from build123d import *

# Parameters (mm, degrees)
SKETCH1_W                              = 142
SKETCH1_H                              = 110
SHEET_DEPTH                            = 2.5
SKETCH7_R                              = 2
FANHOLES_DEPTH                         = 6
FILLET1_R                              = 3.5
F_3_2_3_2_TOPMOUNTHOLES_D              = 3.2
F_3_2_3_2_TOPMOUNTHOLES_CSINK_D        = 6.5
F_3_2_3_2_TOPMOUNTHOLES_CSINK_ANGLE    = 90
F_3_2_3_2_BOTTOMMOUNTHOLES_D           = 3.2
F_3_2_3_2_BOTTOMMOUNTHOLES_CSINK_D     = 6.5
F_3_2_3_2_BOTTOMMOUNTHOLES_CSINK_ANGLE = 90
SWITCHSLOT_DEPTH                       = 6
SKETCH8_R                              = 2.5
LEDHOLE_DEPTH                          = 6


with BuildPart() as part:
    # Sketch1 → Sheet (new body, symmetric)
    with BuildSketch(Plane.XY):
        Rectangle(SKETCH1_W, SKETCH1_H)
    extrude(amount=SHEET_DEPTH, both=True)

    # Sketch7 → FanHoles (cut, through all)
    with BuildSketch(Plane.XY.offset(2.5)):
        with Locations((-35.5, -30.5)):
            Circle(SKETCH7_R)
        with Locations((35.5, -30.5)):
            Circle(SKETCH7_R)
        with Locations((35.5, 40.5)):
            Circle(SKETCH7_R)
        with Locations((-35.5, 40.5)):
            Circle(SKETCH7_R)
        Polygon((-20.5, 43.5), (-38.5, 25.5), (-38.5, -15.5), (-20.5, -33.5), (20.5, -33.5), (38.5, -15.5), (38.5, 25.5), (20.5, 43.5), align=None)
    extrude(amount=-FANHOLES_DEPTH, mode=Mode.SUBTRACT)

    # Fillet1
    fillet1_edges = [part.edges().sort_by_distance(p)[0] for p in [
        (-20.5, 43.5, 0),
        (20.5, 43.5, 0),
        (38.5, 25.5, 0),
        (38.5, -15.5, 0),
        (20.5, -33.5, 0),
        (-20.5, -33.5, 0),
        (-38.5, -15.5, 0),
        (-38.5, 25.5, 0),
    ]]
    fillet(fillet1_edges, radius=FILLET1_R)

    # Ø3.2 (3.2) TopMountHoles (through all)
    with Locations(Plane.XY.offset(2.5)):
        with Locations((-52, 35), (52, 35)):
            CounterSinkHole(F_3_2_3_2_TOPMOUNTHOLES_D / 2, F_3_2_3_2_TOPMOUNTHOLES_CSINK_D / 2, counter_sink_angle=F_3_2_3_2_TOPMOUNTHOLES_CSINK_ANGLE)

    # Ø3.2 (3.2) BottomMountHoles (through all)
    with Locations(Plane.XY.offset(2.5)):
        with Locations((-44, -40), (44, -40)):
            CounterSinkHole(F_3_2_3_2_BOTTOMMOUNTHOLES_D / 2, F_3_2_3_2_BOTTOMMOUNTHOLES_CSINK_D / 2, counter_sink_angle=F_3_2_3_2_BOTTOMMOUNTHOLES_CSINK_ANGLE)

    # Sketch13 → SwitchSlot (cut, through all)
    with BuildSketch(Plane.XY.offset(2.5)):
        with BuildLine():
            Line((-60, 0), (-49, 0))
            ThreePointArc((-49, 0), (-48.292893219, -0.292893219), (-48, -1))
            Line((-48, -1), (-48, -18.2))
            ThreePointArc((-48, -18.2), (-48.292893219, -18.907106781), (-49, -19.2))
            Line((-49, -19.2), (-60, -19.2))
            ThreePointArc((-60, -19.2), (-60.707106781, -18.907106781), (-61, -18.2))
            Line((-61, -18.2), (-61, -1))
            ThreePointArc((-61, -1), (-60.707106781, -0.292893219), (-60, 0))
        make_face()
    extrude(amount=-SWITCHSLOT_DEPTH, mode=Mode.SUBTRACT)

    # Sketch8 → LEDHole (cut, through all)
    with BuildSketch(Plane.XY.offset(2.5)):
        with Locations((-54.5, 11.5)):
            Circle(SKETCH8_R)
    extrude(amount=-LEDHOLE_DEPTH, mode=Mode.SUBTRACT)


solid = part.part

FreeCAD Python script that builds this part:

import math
import FreeCAD as App
import Part
import Sketcher

V = App.Vector
Q = App.Units.Quantity


def edges_at(feature, points):
    """Names of the edges that pass closest to the given points."""
    edges = feature.Shape.Edges
    near = lambda p: min(range(len(edges)), key=lambda i: edges[i].distToShape(Part.Vertex(*p))[0])
    return sorted({f"Edge{near(p) + 1}" for p in points})


def add_polygon(sketch, points):
    """Adds a closed chain of lines whose ends are joined by coincident constraints."""
    first, n = sketch.GeometryCount, len(points)
    for a, b in zip(points, points[1:] + points[:1]):
        sketch.addGeometry(Part.LineSegment(App.Vector(*a, 0), App.Vector(*b, 0)), False)
    for i in range(n):
        sketch.addConstraint(Sketcher.Constraint("Coincident", first + i, 2, first + (i + 1) % n, 1))

doc = App.newDocument("Part")
body = doc.addObject("PartDesign::Body", "Body")

sketch1 = body.newObject("Sketcher::SketchObject", "Sketch")
sketch1.AttachmentSupport = (doc.getObject("XY_Plane"), [""])
sketch1.MapMode = "FlatFace"
add_polygon(sketch1, [(-71, 55), (-71, -55), (71, -55), (71, 55)])
sketch1.addConstraint([
    Sketcher.Constraint("Vertical", 0),
    Sketcher.Constraint("Horizontal", 1),
    Sketcher.Constraint("Vertical", 2),
    Sketcher.Constraint("Horizontal", 3),
    Sketcher.Constraint("Symmetric", 0, 2, 2, 2, -1, 1),
    Sketcher.Constraint("DistanceX", 1, 1, 1, 2, Q("142 mm")),
    Sketcher.Constraint("DistanceY", 0, 2, 0, 1, Q("110 mm")),
])
pad1 = body.newObject("PartDesign::Pad", "Pad")
pad1.Profile = sketch1
pad1.Length = 5
pad1.Midplane = True

sketch2 = body.newObject("Sketcher::SketchObject", "Sketch001")
sketch2.AttachmentSupport = (doc.getObject("XY_Plane"), [""])
sketch2.MapMode = "FlatFace"
sketch2.AttachmentOffset = App.Placement(V(0, 0, 2.5), App.Rotation())
sketch2.addGeometry(Part.Circle(V(-35.5, -30.5, 0), V(0, 0, 1), 2), False)
sketch2.addGeometry(Part.Circle(V(35.5, -30.5, 0), V(0, 0, 1), 2), False)
sketch2.addGeometry(Part.Circle(V(35.5, 40.5, 0), V(0, 0, 1), 2), False)
sketch2.addGeometry(Part.Circle(V(-35.5, 40.5, 0), V(0, 0, 1), 2), False)
add_polygon(sketch2, [(-20.5, 43.5), (-38.5, 25.5), (-38.5, -15.5), (-20.5, -33.5), (20.5, -33.5), (38.5, -15.5), (38.5, 25.5), (20.5, 43.5)])
sketch2.addConstraint([
    Sketcher.Constraint("Vertical", 5),
    Sketcher.Constraint("Horizontal", 7),
    Sketcher.Constraint("Vertical", 9),
    Sketcher.Constraint("Horizontal", 11),
    Sketcher.Constraint("Equal", 0, 1),
    Sketcher.Constraint("Equal", 1, 2),
    Sketcher.Constraint("Equal", 2, 3),
    Sketcher.Constraint("Symmetric", 0, 3, 1, 3, -2),
    Sketcher.Constraint("Symmetric", 2, 3, 3, 3, -2),
    Sketcher.Constraint("Symmetric", 5, 2, 8, 2, -2),
    Sketcher.Constraint("Perpendicular", 4, 6),
    Sketcher.Constraint("Perpendicular", 6, 8),
    Sketcher.Constraint("Perpendicular", 8, 10),
    Sketcher.Constraint("Horizontal", 4, 2, 9, 2),
    Sketcher.Constraint("Vertical", 1, 3, 2, 3),
    Sketcher.Constraint("Vertical", 7, 2, 10, 2),
    Sketcher.Constraint("Vertical", 6, 2, 11, 2),
    Sketcher.Constraint("Equal", 11, 5),
    Sketcher.Constraint("Diameter", 0, Q("4 mm")),
    Sketcher.Constraint("DistanceX", 7, 1, 7, 2, Q("41 mm")),
    Sketcher.Constraint("DistanceX", 0, 3, 1, 3, Q("71 mm")),
    Sketcher.Constraint("DistanceY", 1, 3, 2, 3, Q("71 mm")),
    Sketcher.Constraint("DistanceX", 4, 2, 3, 3, Q("3 mm")),
    Sketcher.Constraint("DistanceY", 4, 2, 3, 3, Q("15 mm")),
    Sketcher.Constraint("DistanceY", 0, 3, -1, 1, Q("30.5 mm")),
])
pocket1 = body.newObject("PartDesign::Pocket", "Pocket")
pocket1.Profile = sketch2
pocket1.Type = "ThroughAll"
doc.recompute()

fillet = body.newObject("PartDesign::Fillet", "Fillet")
fillet.Base = (pocket1, edges_at(pocket1, [
    (-20.5, 43.5, 0),
    (20.5, 43.5, 0),
    (38.5, 25.5, 0),
    (38.5, -15.5, 0),
    (20.5, -33.5, 0),
    (-20.5, -33.5, 0),
    (-38.5, -15.5, 0),
    (-38.5, 25.5, 0),
]))
fillet.Radius = 3.5

sketch3 = body.newObject("Sketcher::SketchObject", "Sketch002")
sketch3.AttachmentSupport = (doc.getObject("XY_Plane"), [""])
sketch3.MapMode = "FlatFace"
sketch3.AttachmentOffset = App.Placement(V(0, 0, 2.5), App.Rotation())
sketch3.addGeometry([
    Part.Circle(V(-52, 35, 0), V(0, 0, 1), 1.6),
    Part.Circle(V(52, 35, 0), V(0, 0, 1), 1.6),
], False)
sketch3.addConstraint([
    Sketcher.Constraint("Equal", 0, 1),
    Sketcher.Constraint("Symmetric", 0, 3, 1, 3, -2),
    Sketcher.Constraint("Diameter", 0, Q("3.2 mm")),
    Sketcher.Constraint("DistanceX", 0, 3, -1, 1, Q("52 mm")),
    Sketcher.Constraint("DistanceY", -1, 1, 0, 3, Q("35 mm")),
])
doc.recompute()
hole = body.newObject("PartDesign::Hole", "Hole")
hole.Profile = sketch3
hole.ThreadType = "None"
hole.Diameter = 3.2
hole.DepthType = "ThroughAll"
hole.HoleCutType = "Countersink"
hole.HoleCutDiameter = 6.5
hole.HoleCutCountersinkAngle = 90

sketch4 = body.newObject("Sketcher::SketchObject", "Sketch003")
sketch4.AttachmentSupport = (doc.getObject("XY_Plane"), [""])
sketch4.MapMode = "FlatFace"
sketch4.AttachmentOffset = App.Placement(V(0, 0, 2.5), App.Rotation())
sketch4.addGeometry([
    Part.Circle(V(-44, -40, 0), V(0, 0, 1), 1.6),
    Part.Circle(V(44, -40, 0), V(0, 0, 1), 1.6),
], False)
sketch4.addConstraint([
    Sketcher.Constraint("Equal", 0, 1),
    Sketcher.Constraint("Symmetric", 0, 3, 1, 3, -2),
    Sketcher.Constraint("Diameter", 0, Q("3.2 mm")),
    Sketcher.Constraint("DistanceX", 0, 3, -1, 1, Q("44 mm")),
    Sketcher.Constraint("DistanceY", 0, 3, -1, 1, Q("40 mm")),
])
doc.recompute()
hole2 = body.newObject("PartDesign::Hole", "Hole001")
hole2.Profile = sketch4
hole2.ThreadType = "None"
hole2.Diameter = 3.2
hole2.DepthType = "ThroughAll"
hole2.HoleCutType = "Countersink"
hole2.HoleCutDiameter = 6.5
hole2.HoleCutCountersinkAngle = 90

sketch5 = body.newObject("Sketcher::SketchObject", "Sketch004")
sketch5.AttachmentSupport = (doc.getObject("XY_Plane"), [""])
sketch5.MapMode = "FlatFace"
sketch5.AttachmentOffset = App.Placement(V(0, 0, 2.5), App.Rotation())
sketch5.addGeometry([
    Part.LineSegment(V(-49, 0, 0), V(-60, 0, 0)),
    Part.ArcOfCircle(Part.Circle(V(-60, -1, 0), V(0, 0, 1), 1), math.radians(90), math.radians(180)),
    Part.LineSegment(V(-61, -1, 0), V(-61, -18.2, 0)),
    Part.ArcOfCircle(Part.Circle(V(-60, -18.2, 0), V(0, 0, 1), 1), math.radians(-180), math.radians(-90)),
    Part.LineSegment(V(-60, -19.2, 0), V(-49, -19.2, 0)),
    Part.ArcOfCircle(Part.Circle(V(-49, -18.2, 0), V(0, 0, 1), 1), math.radians(-90), math.radians(0)),
    Part.LineSegment(V(-48, -18.2, 0), V(-48, -1, 0)),
    Part.ArcOfCircle(Part.Circle(V(-49, -1, 0), V(0, 0, 1), 1), math.radians(0), math.radians(90)),
], False)
sketch5.addConstraint([
    Sketcher.Constraint("Tangent", 0, 2, 1, 1),
    Sketcher.Constraint("Tangent", 1, 2, 2, 1),
    Sketcher.Constraint("Tangent", 2, 2, 3, 1),
    Sketcher.Constraint("Tangent", 3, 2, 4, 1),
    Sketcher.Constraint("Tangent", 4, 2, 5, 1),
    Sketcher.Constraint("Tangent", 5, 2, 6, 1),
    Sketcher.Constraint("Tangent", 6, 2, 7, 1),
    Sketcher.Constraint("Tangent", 7, 2, 0, 1),
    Sketcher.Constraint("Horizontal", 0),
    Sketcher.Constraint("Vertical", 2),
    Sketcher.Constraint("Horizontal", 4),
    Sketcher.Constraint("Vertical", 6),
    Sketcher.Constraint("Equal", 1, 3),
    Sketcher.Constraint("Equal", 3, 5),
    Sketcher.Constraint("Equal", 5, 7),
    Sketcher.Constraint("PointOnObject", 0, 2, -1),
    Sketcher.Constraint("Radius", 1, Q("1 mm")),
    Sketcher.Constraint("DistanceX", 0, 2, 0, 1, Q("11 mm")),
    Sketcher.Constraint("DistanceY", 2, 2, 2, 1, Q("17.2 mm")),
    Sketcher.Constraint("DistanceX", 1, 3, -1, 1, Q("60 mm")),
])
pocket2 = body.newObject("PartDesign::Pocket", "Pocket001")
pocket2.Profile = sketch5
pocket2.Type = "ThroughAll"

sketch6 = body.newObject("Sketcher::SketchObject", "Sketch005")
sketch6.AttachmentSupport = (doc.getObject("XY_Plane"), [""])
sketch6.MapMode = "FlatFace"
sketch6.AttachmentOffset = App.Placement(V(0, 0, 2.5), App.Rotation())
sketch6.addGeometry(Part.Circle(V(-54.5, 11.5, 0), V(0, 0, 1), 2.5), False)
sketch6.addConstraint([
    Sketcher.Constraint("Diameter", 0, Q("5 mm")),
    Sketcher.Constraint("DistanceX", 0, 3, -1, 1, Q("54.5 mm")),
    Sketcher.Constraint("DistanceY", -1, 1, 0, 3, Q("11.5 mm")),
])
pocket3 = body.newObject("PartDesign::Pocket", "Pocket002")
pocket3.Profile = sketch6
pocket3.Type = "ThroughAll"

doc.recompute()
